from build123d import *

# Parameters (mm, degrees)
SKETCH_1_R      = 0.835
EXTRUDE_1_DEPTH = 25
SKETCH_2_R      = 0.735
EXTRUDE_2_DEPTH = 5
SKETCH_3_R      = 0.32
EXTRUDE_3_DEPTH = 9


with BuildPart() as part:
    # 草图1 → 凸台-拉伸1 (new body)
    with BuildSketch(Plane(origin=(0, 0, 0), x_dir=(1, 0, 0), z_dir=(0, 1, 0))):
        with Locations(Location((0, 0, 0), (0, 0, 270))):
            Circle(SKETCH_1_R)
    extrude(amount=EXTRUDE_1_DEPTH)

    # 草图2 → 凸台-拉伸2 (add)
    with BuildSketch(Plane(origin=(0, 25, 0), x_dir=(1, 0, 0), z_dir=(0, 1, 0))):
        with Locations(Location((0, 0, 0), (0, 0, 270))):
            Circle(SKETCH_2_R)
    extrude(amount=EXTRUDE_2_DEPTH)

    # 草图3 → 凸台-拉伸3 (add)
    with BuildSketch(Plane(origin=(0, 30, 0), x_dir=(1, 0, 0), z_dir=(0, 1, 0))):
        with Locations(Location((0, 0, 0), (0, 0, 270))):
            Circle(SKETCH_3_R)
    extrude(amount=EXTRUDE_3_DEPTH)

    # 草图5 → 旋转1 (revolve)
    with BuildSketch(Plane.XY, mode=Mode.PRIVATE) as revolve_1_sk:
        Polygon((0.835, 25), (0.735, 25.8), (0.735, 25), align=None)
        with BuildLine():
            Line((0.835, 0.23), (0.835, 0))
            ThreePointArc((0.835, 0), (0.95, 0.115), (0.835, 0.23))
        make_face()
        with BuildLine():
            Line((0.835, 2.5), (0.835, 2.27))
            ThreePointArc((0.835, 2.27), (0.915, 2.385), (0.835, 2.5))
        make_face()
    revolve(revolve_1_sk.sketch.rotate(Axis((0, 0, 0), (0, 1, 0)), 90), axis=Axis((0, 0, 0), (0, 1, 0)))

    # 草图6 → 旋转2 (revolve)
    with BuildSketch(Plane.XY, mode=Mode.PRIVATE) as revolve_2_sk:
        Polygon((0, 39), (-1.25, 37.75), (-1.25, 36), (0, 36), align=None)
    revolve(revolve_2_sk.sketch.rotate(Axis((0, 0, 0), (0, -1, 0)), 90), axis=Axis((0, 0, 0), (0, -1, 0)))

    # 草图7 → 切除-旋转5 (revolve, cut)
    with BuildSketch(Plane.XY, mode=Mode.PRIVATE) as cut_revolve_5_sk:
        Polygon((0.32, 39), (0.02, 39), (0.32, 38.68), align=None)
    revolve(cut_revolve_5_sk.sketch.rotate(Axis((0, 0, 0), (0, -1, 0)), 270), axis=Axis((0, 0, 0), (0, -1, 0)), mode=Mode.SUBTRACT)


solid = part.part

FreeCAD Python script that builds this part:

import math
import FreeCAD as App
import Part
import Sketcher

V = App.Vector
Q = App.Units.Quantity

doc = App.newDocument("Part")
body = doc.addObject("PartDesign::Body", "Body")

sketch1 = body.newObject("Sketcher::SketchObject", "Sketch")
sketch1.AttachmentSupport = (doc.getObject("XZ_Plane"), [""])
sketch1.MapMode = "FlatFace"
sketch1.addGeometry(Part.Circle(V(0, 0, 0), V(0, 0, 1), 0.8), False)
sketch1.addConstraint([
    Sketcher.Constraint("Coincident", 0, 3, -1, 1),
    Sketcher.Constraint("Diameter", 0, 1.67),
])
pad1 = body.newObject("PartDesign::Pad", "Pad")
pad1.Profile = sketch1
pad1.Length = 25
pad1.Reversed = True

sketch2 = body.newObject("Sketcher::SketchObject", "Sketch001")
sketch2.AttachmentSupport = (doc.getObject("XZ_Plane"), [""])
sketch2.MapMode = "FlatFace"
sketch2.AttachmentOffset = App.Placement(V(0, 0, -25), App.Rotation())
sketch2.addGeometry(Part.Circle(V(0, 0, 0), V(0, 0, 1), 0.7), False)
sketch2.addConstraint([
    Sketcher.Constraint("Coincident", 0, 3, -1, 1),
    Sketcher.Constraint("Diameter", 0, 1.47),
])
pad2 = body.newObject("PartDesign::Pad", "Pad001")
pad2.Profile = sketch2
pad2.Length = 5
pad2.Reversed = True

sketch3 = body.newObject("Sketcher::SketchObject", "Sketch002")
sketch3.AttachmentSupport = (doc.getObject("XZ_Plane"), [""])
sketch3.MapMode = "FlatFace"
sketch3.AttachmentOffset = App.Placement(V(0, 0, -30), App.Rotation())
sketch3.addGeometry(Part.Circle(V(0, 0, 0), V(0, 0, 1), 0.32), False)
sketch3.addConstraint([
    Sketcher.Constraint("Coincident", 0, 3, -1, 1),
    Sketcher.Constraint("Diameter", 0, 0.64),
])
pad3 = body.newObject("PartDesign::Pad", "Pad002")
pad3.Profile = sketch3
pad3.Length = 9
pad3.Reversed = True

sketch4 = body.newObject("Sketcher::SketchObject", "Sketch003")
sketch4.AttachmentSupport = (doc.getObject("XY_Plane"), [""])
sketch4.MapMode = "FlatFace"
sketch4.addGeometry([
    Part.LineSegment(V(0.83, 25, 0), V(0.73, 25.8, 0)),
    Part.LineSegment(V(0.73, 25.8, 0), V(0.73, 25, 0)),
    Part.LineSegment(V(0.73, 25, 0), V(0.83, 25, 0)),
    Part.LineSegment(V(0.83, 0.23, 0), V(0.83, 0, 0)),
    Part.ArcOfCircle(Part.Circle(V(0.83, 0.12, 0), V(0, 0, 1), 0.12), math.radians(-90), math.radians(90)),
    Part.LineSegment(V(0.83, 2.5, 0), V(0.83, 2.27, 0)),
    Part.ArcOfCircle(Part.Circle(V(0.79, 2.38, 0), V(0, 0, 1), 0.12), math.radians(-70), math.radians(70)),
], False)
sketch4.addConstraint([
    Sketcher.Constraint("Coincident", 0, 2, 1, 1),
    Sketcher.Constraint("Coincident", 1, 2, 2, 1),
    Sketcher.Constraint("Coincident", 2, 2, 0, 1),
    Sketcher.Constraint("Coincident", 3, 1, 4, 2),
    Sketcher.Constraint("Coincident", 4, 1, 3, 2),
    Sketcher.Constraint("Coincident", 5, 1, 6, 2),
    Sketcher.Constraint("Coincident", 6, 1, 5, 2),
    Sketcher.Constraint("Vertical", 1),
    Sketcher.Constraint("Horizontal", 2),
    Sketcher.Constraint("Vertical", 3),
    Sketcher.Constraint("Vertical", 5),
    Sketcher.Constraint("PointOnObject", 4, 1, -1),
    Sketcher.Constraint("Vertical", 4, 3, 2, 2),
    Sketcher.Constraint("Vertical", 2, 2, 3, 1),
    Sketcher.Constraint("Vertical", 4, 1, 5, 1),
    Sketcher.Constraint("Equal", 3, 5),
    Sketcher.Constraint("DistanceX", 2, 1, 2, 2, 0.1),
    Sketcher.Constraint("DistanceY", 1, 2, 1, 1, 0.8),
    Sketcher.Constraint("DistanceY", -1, 1, 1, 2, 25.0),
    Sketcher.Constraint("Radius", 4, 0.115),
    Sketcher.Constraint("DistanceY", -1, 1, 5, 1, 2.5),
    Sketcher.Constraint("DistanceX", -1, 1, 4, 3, 0.835),
    Sketcher.Constraint("Radius", 6, 0.122656),
])
revolution = body.newObject("PartDesign::Revolution", "Revolution")
revolution.Profile = sketch4
revolution.ReferenceAxis = (sketch4, ["V_Axis"])
revolution.Angle = 360

sketch5 = body.newObject("Sketcher::SketchObject", "Sketch004")
sketch5.AttachmentSupport = (doc.getObject("XY_Plane"), [""])
sketch5.MapMode = "FlatFace"
sketch5.addGeometry([
    Part.LineSegment(V(0, 39, 0), V(-1.2, 37.8, 0)),
    Part.LineSegment(V(-1.2, 37.8, 0), V(-1.2, 36, 0)),
    Part.LineSegment(V(-1.2, 36, 0), V(0, 36, 0)),
    Part.LineSegment(V(0, 36, 0), V(0, 39, 0)),
], False)
sketch5.addConstraint([
    Sketcher.Constraint("Coincident", 0, 2, 1, 1),
    Sketcher.Constraint("Coincident", 1, 2, 2, 1),
    Sketcher.Constraint("Coincident", 2, 2, 3, 1),
    Sketcher.Constraint("Coincident", 3, 2, 0, 1),
    Sketcher.Constraint("Vertical", 1),
    Sketcher.Constraint("Horizontal", 2),
    Sketcher.Constraint("Vertical", 3),
    Sketcher.Constraint("PointOnObject", 2, 2, -2),
    Sketcher.Constraint("DistanceY", 3, 1, 3, 2, 3.0),
    Sketcher.Constraint("Angle", 0, Q("-135 deg")),
    Sketcher.Constraint("DistanceY", -1, 1, 1, 2, 36.0),
    Sketcher.Constraint("DistanceX", 2, 1, 2, 2, 1.25),
])
revolution2 = body.newObject("PartDesign::Revolution", "Revolution001")
revolution2.Profile = sketch5
revolution2.ReferenceAxis = (sketch5, ["V_Axis"])
revolution2.Angle = 360

sketch6 = body.newObject("Sketcher::SketchObject", "Sketch005")
sketch6.AttachmentSupport = (doc.getObject("XY_Plane"), [""])
sketch6.MapMode = "FlatFace"
sketch6.addGeometry([
    Part.LineSegment(V(0.32, 39, 0), V(0.02, 39, 0)),
    Part.LineSegment(V(0.02, 39, 0), V(0.32, 38.68, 0)),
    Part.LineSegment(V(0.32, 38.68, 0), V(0.32, 39, 0)),
], False)
sketch6.addConstraint([
    Sketcher.Constraint("Coincident", 0, 2, 1, 1),
    Sketcher.Constraint("Coincident", 1, 2, 2, 1),
    Sketcher.Constraint("Coincident", 2, 2, 0, 1),
    Sketcher.Constraint("Horizontal", 0),
    Sketcher.Constraint("Vertical", 2),
    Sketcher.Constraint("DistanceX", 0, 2, 0, 1, 0.3),
    Sketcher.Constraint("DistanceY", -1, 1, 0, 2, 39.0),
    Sketcher.Constraint("DistanceY", 2, 1, 2, 2, 0.32),
    Sketcher.Constraint("DistanceX", -1, 1, 0, 2, 0.02),
])
groove = body.newObject("PartDesign::Groove", "Groove")
groove.Profile = sketch6
groove.ReferenceAxis = (sketch6, ["V_Axis"])
groove.Angle = 360

doc.recompute()
